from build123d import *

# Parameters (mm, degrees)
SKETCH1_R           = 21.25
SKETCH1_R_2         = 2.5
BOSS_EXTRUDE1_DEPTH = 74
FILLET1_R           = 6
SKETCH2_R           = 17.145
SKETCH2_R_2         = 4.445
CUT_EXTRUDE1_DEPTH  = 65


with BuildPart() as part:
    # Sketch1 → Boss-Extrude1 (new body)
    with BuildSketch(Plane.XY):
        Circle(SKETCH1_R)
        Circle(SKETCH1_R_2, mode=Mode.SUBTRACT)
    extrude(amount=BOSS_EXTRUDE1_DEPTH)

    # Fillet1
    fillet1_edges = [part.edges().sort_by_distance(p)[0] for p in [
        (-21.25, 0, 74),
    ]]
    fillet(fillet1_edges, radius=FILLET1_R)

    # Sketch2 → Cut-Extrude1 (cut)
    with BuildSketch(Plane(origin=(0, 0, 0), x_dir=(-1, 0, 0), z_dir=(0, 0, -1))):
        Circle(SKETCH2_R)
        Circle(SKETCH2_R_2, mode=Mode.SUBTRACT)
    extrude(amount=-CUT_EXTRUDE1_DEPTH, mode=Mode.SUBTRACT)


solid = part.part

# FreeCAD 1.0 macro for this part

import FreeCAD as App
import Part
import Sketcher

V = App.Vector


def edges_at(feature, points):
    """Names of the edges that pass closest to the given points."""
    edges = feature.Shape.Edges
    near = lambda p: min(range(len(edges)), key=lambda i: edges[i].distToShape(Part.Vertex(*p))[0])
    return sorted({f"Edge{near(p) + 1}" for p in points})

doc = App.newDocument("Part")
body = doc.addObject("PartDesign::Body", "Body")

sketch1 = doc.addObject("Sketcher::SketchObject", "Sketch")
body.addObject(sketch1)
sketch1.AttachmentSupport = (doc.XY_Plane, [""])
sketch1.MapMode = "FlatFace"
sketch1.addGeometry(Part.Circle(V(0, 0, 0), V(0, 0, 1), 21.2), False)
sketch1.addGeometry(Part.Circle(V(0, 0, 0), V(0, 0, 1), 2.5), False)
sketch1.addConstraint(Sketcher.Constraint("Coincident", 0, 3, -1, 1))
sketch1.addConstraint(Sketcher.Constraint("Coincident", 1, 3, -1, 1))
sketch1.addConstraint(Sketcher.Constraint("Diameter", 1, 5.0))
sketch1.addConstraint(Sketcher.Constraint("Diameter", 0, 42.5))
pad1 = doc.addObject("PartDesign::Pad", "Pad")
body.addObject(pad1)
pad1.Profile = sketch1
pad1.Length = 74
doc.recompute()

fillet = doc.addObject("PartDesign::Fillet", "Fillet")
body.addObject(fillet)
fillet.Base = (pad1, edges_at(pad1, [(-21.25, 0, 74)]))
fillet.Radius = 6

sketch2 = doc.addObject("Sketcher::SketchObject", "Sketch001")
body.addObject(sketch2)
sketch2.AttachmentSupport = (doc.XY_Plane, [""])
sketch2.MapMode = "FlatFace"
sketch2.addGeometry(Part.Circle(V(0, 0, 0), V(0, 0, 1), 17.1), False)
sketch2.addGeometry(Part.Circle(V(0, 0, 0), V(0, 0, 1), 4.4), False)
sketch2.addConstraint(Sketcher.Constraint("Coincident", 0, 3, -1, 1))
sketch2.addConstraint(Sketcher.Constraint("Coincident", 1, 3, -1, 1))
sketch2.addConstraint(Sketcher.Constraint("Diameter", 0, 34.29))
sketch2.addConstraint(Sketcher.Constraint("Diameter", 1, 8.89))
pocket1 = doc.addObject("PartDesign::Pocket", "Pocket")
body.addObject(pocket1)
pocket1.Profile = sketch2
pocket1.Length = 65
pocket1.Reversed = True

doc.recompute()
